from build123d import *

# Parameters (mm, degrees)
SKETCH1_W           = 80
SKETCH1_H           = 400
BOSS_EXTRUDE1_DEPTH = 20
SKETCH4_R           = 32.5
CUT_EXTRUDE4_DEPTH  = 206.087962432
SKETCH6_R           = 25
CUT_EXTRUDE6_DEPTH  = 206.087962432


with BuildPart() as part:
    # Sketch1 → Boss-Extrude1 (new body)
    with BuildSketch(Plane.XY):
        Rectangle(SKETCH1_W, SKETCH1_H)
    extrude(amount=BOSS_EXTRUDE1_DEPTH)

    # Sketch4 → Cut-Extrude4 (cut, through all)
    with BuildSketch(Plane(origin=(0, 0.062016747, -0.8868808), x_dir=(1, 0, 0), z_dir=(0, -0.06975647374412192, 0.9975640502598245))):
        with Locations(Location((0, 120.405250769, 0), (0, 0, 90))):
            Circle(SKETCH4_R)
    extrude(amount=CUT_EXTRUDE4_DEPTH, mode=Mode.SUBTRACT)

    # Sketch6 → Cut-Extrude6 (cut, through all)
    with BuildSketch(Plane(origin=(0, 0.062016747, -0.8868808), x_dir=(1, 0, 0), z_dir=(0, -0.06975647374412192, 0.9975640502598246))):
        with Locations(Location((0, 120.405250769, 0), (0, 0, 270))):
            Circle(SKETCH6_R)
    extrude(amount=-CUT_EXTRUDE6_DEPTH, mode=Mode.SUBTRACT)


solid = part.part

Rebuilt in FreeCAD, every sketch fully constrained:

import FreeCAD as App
import Part
import Sketcher
Q = App.Units.Quantity

doc = App.newDocument("Part")
body = doc.addObject("PartDesign::Body", "Body")

# Sketch on XY plane
sketch1 = doc.addObject("Sketcher::SketchObject", "Sketch")
body.addObject(sketch1)
sketch1.AttachmentSupport = (doc.XY_Plane, [""])
sketch1.MapMode = "FlatFace"
sketch1.addGeometry(Part.LineSegment(App.Vector(-40, 200, 0), App.Vector(-40, -200, 0)), False)
sketch1.addGeometry(Part.LineSegment(App.Vector(-40, -200, 0), App.Vector(40, -200, 0)), False)
sketch1.addGeometry(Part.LineSegment(App.Vector(40, -200, 0), App.Vector(40, 200, 0)), False)
sketch1.addGeometry(Part.LineSegment(App.Vector(40, 200, 0), App.Vector(-40, 200, 0)), False)
sketch1.addConstraint(Sketcher.Constraint("Coincident", 0, 2, 1, 1))
sketch1.addConstraint(Sketcher.Constraint("Coincident", 1, 2, 2, 1))
sketch1.addConstraint(Sketcher.Constraint("Coincident", 2, 2, 3, 1))
sketch1.addConstraint(Sketcher.Constraint("Coincident", 3, 2, 0, 1))
sketch1.addConstraint(Sketcher.Constraint("Vertical", 0))
sketch1.addConstraint(Sketcher.Constraint("Horizontal", 1))
sketch1.addConstraint(Sketcher.Constraint("Vertical", 2))
sketch1.addConstraint(Sketcher.Constraint("Horizontal", 3))
sketch1.addConstraint(Sketcher.Constraint("Symmetric", 0, 2, 2, 2, -1, 1))
sketch1.addConstraint(Sketcher.Constraint("DistanceX", 1, 1, 1, 2, Q("80 mm")))
sketch1.addConstraint(Sketcher.Constraint("DistanceY", 0, 2, 0, 1, Q("400 mm")))
pad1 = doc.addObject("PartDesign::Pad", "Pad")
body.addObject(pad1)
pad1.Profile = sketch1
pad1.Length = 20

# Sketch on an angled plane
sketch2 = doc.addObject("Sketcher::SketchObject", "Sketch001")
body.addObject(sketch2)
sketch2.Placement = App.Placement(App.Vector(0, 0.062017, -0.886881), App.Rotation(App.Vector(1, 0, 0), App.Vector(0, 0.99756405, 0.069756474), App.Vector(0, -0.069756474, 0.99756405), "ZXY"))
sketch2.addGeometry(Part.Circle(App.Vector(0, 120.405251, 0), App.Vector(0, 0, 1), 32.5), False)
sketch2.addConstraint(Sketcher.Constraint("PointOnObject", 0, 3, -2))
sketch2.addConstraint(Sketcher.Constraint("Diameter", 0, Q("65 mm")))
sketch2.addConstraint(Sketcher.Constraint("DistanceY", -1, 1, 0, 3, Q("120.405251 mm")))
pocket1 = doc.addObject("PartDesign::Pocket", "Pocket")
body.addObject(pocket1)
pocket1.Profile = sketch2
pocket1.Type = "ThroughAll"
pocket1.Reversed = True

# Sketch on an angled plane
sketch3 = doc.addObject("Sketcher::SketchObject", "Sketch002")
body.addObject(sketch3)
sketch3.Placement = App.Placement(App.Vector(0, 0.062017, -0.886881), App.Rotation(App.Vector(1, 0, 0), App.Vector(0, 0.99756405, 0.069756474), App.Vector(0, -0.069756474, 0.99756405), "ZXY"))
sketch3.addGeometry(Part.Circle(App.Vector(0, 120.405251, 0), App.Vector(0, 0, 1), 25), False)
sketch3.addConstraint(Sketcher.Constraint("PointOnObject", 0, 3, -2))
sketch3.addConstraint(Sketcher.Constraint("Diameter", 0, Q("50 mm")))
sketch3.addConstraint(Sketcher.Constraint("DistanceY", -1, 1, 0, 3, Q("120.405251 mm")))
pocket2 = doc.addObject("PartDesign::Pocket", "Pocket001")
body.addObject(pocket2)
pocket2.Profile = sketch3
pocket2.Type = "ThroughAll"

doc.recompute()
